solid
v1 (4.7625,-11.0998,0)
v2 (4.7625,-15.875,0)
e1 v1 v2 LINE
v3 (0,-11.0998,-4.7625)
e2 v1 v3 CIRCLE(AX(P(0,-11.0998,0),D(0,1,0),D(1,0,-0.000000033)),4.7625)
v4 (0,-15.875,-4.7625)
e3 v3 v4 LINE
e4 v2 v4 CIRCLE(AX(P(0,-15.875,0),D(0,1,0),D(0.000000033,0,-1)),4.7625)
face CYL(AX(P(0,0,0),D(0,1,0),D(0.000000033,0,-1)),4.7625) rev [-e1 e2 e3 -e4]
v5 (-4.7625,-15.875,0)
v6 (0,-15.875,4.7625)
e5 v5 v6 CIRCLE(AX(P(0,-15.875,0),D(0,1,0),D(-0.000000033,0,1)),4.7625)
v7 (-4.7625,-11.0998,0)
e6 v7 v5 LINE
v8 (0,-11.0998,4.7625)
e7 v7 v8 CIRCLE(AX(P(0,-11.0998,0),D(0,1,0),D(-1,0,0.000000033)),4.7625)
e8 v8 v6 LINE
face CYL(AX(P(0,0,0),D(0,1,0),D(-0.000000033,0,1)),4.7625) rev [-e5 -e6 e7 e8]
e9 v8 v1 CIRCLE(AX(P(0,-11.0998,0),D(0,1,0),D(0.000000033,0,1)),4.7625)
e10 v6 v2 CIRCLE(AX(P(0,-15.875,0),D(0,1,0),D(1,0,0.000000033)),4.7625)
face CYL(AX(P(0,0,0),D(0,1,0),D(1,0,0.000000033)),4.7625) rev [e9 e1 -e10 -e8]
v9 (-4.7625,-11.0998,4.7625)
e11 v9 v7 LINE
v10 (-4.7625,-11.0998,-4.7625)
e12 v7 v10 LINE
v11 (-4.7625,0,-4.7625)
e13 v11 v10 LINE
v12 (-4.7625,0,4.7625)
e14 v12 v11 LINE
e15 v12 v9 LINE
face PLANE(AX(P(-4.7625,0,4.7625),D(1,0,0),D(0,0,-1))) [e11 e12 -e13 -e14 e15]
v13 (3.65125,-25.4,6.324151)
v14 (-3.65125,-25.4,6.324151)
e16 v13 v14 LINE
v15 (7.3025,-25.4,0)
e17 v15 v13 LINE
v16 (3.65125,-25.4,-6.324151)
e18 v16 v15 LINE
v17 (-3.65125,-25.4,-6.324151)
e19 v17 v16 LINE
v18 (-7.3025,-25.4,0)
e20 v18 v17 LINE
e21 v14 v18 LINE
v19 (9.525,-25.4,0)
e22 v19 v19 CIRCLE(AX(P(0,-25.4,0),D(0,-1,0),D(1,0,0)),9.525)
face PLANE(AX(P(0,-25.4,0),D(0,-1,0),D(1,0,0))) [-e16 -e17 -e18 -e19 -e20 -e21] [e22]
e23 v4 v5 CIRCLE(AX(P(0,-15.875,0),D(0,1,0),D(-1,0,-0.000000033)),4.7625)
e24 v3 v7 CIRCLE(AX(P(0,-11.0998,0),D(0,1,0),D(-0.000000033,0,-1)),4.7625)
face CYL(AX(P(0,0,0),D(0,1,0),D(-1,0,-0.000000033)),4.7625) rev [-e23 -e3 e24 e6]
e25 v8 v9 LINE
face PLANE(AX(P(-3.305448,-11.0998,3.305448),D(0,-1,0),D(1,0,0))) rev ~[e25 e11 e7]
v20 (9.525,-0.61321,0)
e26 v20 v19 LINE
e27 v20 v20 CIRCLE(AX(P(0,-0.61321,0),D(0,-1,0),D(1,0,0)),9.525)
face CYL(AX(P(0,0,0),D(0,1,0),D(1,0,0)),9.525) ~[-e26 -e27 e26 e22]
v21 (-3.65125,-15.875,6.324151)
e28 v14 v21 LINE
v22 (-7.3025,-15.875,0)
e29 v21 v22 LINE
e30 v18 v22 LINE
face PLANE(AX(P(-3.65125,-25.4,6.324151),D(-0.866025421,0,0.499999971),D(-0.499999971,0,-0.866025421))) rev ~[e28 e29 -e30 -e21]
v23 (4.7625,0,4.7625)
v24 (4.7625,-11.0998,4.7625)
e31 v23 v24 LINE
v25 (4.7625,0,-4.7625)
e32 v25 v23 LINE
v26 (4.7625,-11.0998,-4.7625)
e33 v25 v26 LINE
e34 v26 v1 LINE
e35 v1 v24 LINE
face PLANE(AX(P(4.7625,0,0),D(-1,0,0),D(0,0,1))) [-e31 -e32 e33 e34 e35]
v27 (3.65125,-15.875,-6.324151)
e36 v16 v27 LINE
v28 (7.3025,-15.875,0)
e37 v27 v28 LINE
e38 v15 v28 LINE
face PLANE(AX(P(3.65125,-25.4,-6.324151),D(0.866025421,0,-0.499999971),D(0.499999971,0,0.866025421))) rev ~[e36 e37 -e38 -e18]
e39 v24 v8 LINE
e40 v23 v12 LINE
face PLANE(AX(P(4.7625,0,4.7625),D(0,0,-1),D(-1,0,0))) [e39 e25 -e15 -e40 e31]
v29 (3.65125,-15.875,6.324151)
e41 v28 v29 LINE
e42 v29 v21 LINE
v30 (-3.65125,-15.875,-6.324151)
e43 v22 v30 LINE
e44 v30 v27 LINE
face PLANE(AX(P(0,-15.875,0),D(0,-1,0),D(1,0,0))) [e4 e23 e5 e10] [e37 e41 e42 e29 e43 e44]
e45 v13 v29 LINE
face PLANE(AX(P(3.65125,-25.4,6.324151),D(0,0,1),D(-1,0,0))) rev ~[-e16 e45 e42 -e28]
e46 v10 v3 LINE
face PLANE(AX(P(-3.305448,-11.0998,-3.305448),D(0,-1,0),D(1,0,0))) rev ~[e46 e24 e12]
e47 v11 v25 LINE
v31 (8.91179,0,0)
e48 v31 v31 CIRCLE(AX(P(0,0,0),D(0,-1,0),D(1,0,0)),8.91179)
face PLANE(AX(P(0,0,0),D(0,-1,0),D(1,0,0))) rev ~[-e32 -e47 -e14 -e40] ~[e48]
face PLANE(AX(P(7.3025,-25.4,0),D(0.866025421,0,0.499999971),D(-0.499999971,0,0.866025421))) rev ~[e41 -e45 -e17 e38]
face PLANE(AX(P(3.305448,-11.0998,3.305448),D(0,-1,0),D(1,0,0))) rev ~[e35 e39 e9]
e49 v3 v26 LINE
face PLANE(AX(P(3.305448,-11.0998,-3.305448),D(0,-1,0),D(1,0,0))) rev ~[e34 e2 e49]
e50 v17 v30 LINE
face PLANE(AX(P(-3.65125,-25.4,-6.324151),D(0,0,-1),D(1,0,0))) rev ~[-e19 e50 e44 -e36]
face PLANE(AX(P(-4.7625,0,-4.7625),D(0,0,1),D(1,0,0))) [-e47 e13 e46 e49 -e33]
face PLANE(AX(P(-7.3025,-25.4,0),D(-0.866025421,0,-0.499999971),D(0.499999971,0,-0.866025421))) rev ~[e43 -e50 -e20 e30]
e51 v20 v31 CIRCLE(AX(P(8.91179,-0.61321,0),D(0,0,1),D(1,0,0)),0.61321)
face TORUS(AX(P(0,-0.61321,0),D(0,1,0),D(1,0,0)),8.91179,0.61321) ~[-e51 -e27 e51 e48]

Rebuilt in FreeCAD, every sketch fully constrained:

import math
import FreeCAD as App
import Part
import Sketcher
Q = App.Units.Quantity


def edges_at(feature, points):
    """Names of the edges that pass closest to the given points."""
    edges = feature.Shape.Edges
    near = lambda p: min(range(len(edges)), key=lambda i: edges[i].distToShape(Part.Vertex(*p))[0])
    return sorted({f"Edge{near(p) + 1}" for p in points})


def add_polygon(sketch, points):
    """Adds a closed chain of lines whose ends are joined by coincident constraints."""
    first, n = sketch.GeometryCount, len(points)
    for a, b in zip(points, points[1:] + points[:1]):
        sketch.addGeometry(Part.LineSegment(App.Vector(*a, 0), App.Vector(*b, 0)), False)
    for i in range(n):
        sketch.addConstraint(Sketcher.Constraint("Coincident", first + i, 2, first + (i + 1) % n, 1))

doc = App.newDocument("Part")
params = doc.addObject("Spreadsheet::Sheet", "Params")
for row, (alias, value) in enumerate([
    ("sketch1_diameter", "0.75 in"),
    ("pad1_length", "1 in"),
    ("sketch2_radius", "0.1875 in"),
    ("sketch3_radius", "0.1875 in"),
    ("pocket2_length", "0.437 in"),
    ("pocket3_length", "0.375 in"),
    ("fillet_radius", "0.61321 mm"),
], start=1):
    params.set(f"A{row}", alias)
    params.set(f"B{row}", "=" + value)
    params.setAlias(f"B{row}", alias)

body = doc.addObject("PartDesign::Body", "Body")

sketch1 = body.newObject("Sketcher::SketchObject", "Sketch")
sketch1.AttachmentSupport = (doc.getObject("XZ_Plane"), [""])
sketch1.MapMode = "FlatFace"
sketch1.addGeometry(Part.Circle(App.Vector(0, 0, 0), App.Vector(0, 0, 1), 10), False)
sketch1.addConstraint([
    Sketcher.Constraint("Coincident", 0, 3, -1, 1),
    Sketcher.Constraint("Diameter", 0, Q("0.75 in")),
])
sketch1.setExpression("Constraints[1]", "Params.sketch1_diameter")
pad1 = body.newObject("PartDesign::Pad", "Pad")
pad1.Profile = sketch1
pad1.setExpression("Length", "Params.pad1_length")

sketch2 = body.newObject("Sketcher::SketchObject", "Sketch001")
sketch2.AttachmentSupport = (doc.getObject("XZ_Plane"), [""])
sketch2.MapMode = "FlatFace"
sketch2.addGeometry([
    Part.ArcOfCircle(Part.Circle(App.Vector(0, 0, 0), App.Vector(0, 0, 1), 4.8), math.radians(0), math.radians(90)),
    Part.ArcOfCircle(Part.Circle(App.Vector(0, 0, 0), App.Vector(0, 0, 1), 4.8), math.radians(90), math.radians(180)),
    Part.ArcOfCircle(Part.Circle(App.Vector(0, 0, 0), App.Vector(0, 0, 1), 4.8), math.radians(-180), math.radians(-90)),
    Part.ArcOfCircle(Part.Circle(App.Vector(0, 0, 0), App.Vector(0, 0, 1), 4.8), math.radians(-90), math.radians(0)),
], False)
sketch2.addConstraint([
    Sketcher.Constraint("Tangent", 0, 2, 1, 1),
    Sketcher.Constraint("Tangent", 1, 2, 2, 1),
    Sketcher.Constraint("Tangent", 2, 2, 3, 1),
    Sketcher.Constraint("Tangent", 3, 2, 0, 1),
    Sketcher.Constraint("Coincident", 0, 3, -1, 1),
    Sketcher.Constraint("Equal", 0, 1),
    Sketcher.Constraint("PointOnObject", 0, 2, -2),
    Sketcher.Constraint("PointOnObject", 1, 2, -1),
    Sketcher.Constraint("PointOnObject", 2, 2, -2),
    Sketcher.Constraint("PointOnObject", 3, 2, -1),
    Sketcher.Constraint("Radius", 0, Q("0.1875 in")),
])
sketch2.setExpression("Constraints[10]", "Params.sketch2_radius")
pocket1 = body.newObject("PartDesign::Pocket", "Pocket")
pocket1.Profile = sketch2
pocket1.Type = "ThroughAll"
pocket1.Reversed = True

sketch3 = body.newObject("Sketcher::SketchObject", "Sketch002")
sketch3.AttachmentSupport = (doc.getObject("XZ_Plane"), [""])
sketch3.MapMode = "FlatFace"
sketch3.addGeometry([
    Part.ArcOfCircle(Part.Circle(App.Vector(0, 0, 0), App.Vector(0, 0, 1), 4.8), math.radians(-180), math.radians(-90)),
    Part.LineSegment(App.Vector(-4.8, 0, 0), App.Vector(-4.8, -4.8, 0)),
    Part.LineSegment(App.Vector(-4.8, -4.8, 0), App.Vector(0, -4.8, 0)),
    Part.ArcOfCircle(Part.Circle(App.Vector(0, 0, 0), App.Vector(0, 0, 1), 4.8), math.radians(90), math.radians(180)),
    Part.LineSegment(App.Vector(0, 4.8, 0), App.Vector(-4.8, 4.8, 0)),
    Part.LineSegment(App.Vector(-4.8, 4.8, 0), App.Vector(-4.8, 0, 0)),
    Part.LineSegment(App.Vector(4.8, 0, 0), App.Vector(4.8, 4.8, 0)),
    Part.LineSegment(App.Vector(4.8, 4.8, 0), App.Vector(0, 4.8, 0)),
    Part.ArcOfCircle(Part.Circle(App.Vector(0, 0, 0), App.Vector(0, 0, 1), 4.8), math.radians(0), math.radians(90)),
    Part.LineSegment(App.Vector(4.8, -4.8, 0), App.Vector(4.8, 0, 0)),
    Part.ArcOfCircle(Part.Circle(App.Vector(0, 0, 0), App.Vector(0, 0, 1), 4.8), math.radians(-90), math.radians(0)),
    Part.LineSegment(App.Vector(0, -4.8, 0), App.Vector(4.8, -4.8, 0)),
], False)
sketch3.addConstraint([
    Sketcher.Constraint("Tangent", 0, 1, 1, 1),
    Sketcher.Constraint("Coincident", 1, 2, 2, 1),
    Sketcher.Constraint("Tangent", 2, 2, 0, 2),
    Sketcher.Constraint("Tangent", 3, 1, 4, 1),
    Sketcher.Constraint("Coincident", 4, 2, 5, 1),
    Sketcher.Constraint("Tangent", 5, 2, 3, 2),
    Sketcher.Constraint("Coincident", 6, 2, 7, 1),
    Sketcher.Constraint("Tangent", 7, 2, 8, 2),
    Sketcher.Constraint("Tangent", 8, 1, 6, 1),
    Sketcher.Constraint("Tangent", 9, 2, 10, 2),
    Sketcher.Constraint("Tangent", 10, 1, 11, 1),
    Sketcher.Constraint("Coincident", 11, 2, 9, 1),
    Sketcher.Constraint("Vertical", 1),
    Sketcher.Constraint("Horizontal", 2),
    Sketcher.Constraint("Horizontal", 4),
    Sketcher.Constraint("Vertical", 5),
    Sketcher.Constraint("Vertical", 6),
    Sketcher.Constraint("Horizontal", 7),
    Sketcher.Constraint("Vertical", 9),
    Sketcher.Constraint("Horizontal", 11),
    Sketcher.Constraint("Coincident", 0, 3, -1, 1),
    Sketcher.Constraint("Coincident", 3, 3, -1, 1),
    Sketcher.Constraint("Coincident", 8, 3, -1, 1),
    Sketcher.Constraint("Coincident", 10, 3, -1, 1),
    Sketcher.Constraint("Equal", 0, 3),
    Sketcher.Constraint("Equal", 3, 8),
    Sketcher.Constraint("Equal", 8, 10),
    Sketcher.Constraint("Radius", 0, Q("0.1875 in")),
])
sketch3.setExpression("Constraints[27]", "Params.sketch3_radius")
pocket2 = body.newObject("PartDesign::Pocket", "Pocket001")
pocket2.Profile = sketch3
pocket2.setExpression("Length", "Params.pocket2_length")
pocket2.Reversed = True

sketch4 = body.newObject("Sketcher::SketchObject", "Sketch003")
sketch4.AttachmentSupport = (doc.getObject("XZ_Plane"), [""])
sketch4.MapMode = "FlatFace"
sketch4.AttachmentOffset = App.Placement(App.Vector(0, 0, 1 * 25.4), App.Rotation())
add_polygon(sketch4, [(4, -6), (7, 0), (4, 6), (-4, 6), (-7, 0), (-4, -6)])
sketch4.addConstraint([
    Sketcher.Constraint("Horizontal", 2),
    Sketcher.Constraint("Horizontal", 5),
    Sketcher.Constraint("Symmetric", 0, 2, 3, 2, -1, 1),
    Sketcher.Constraint("Symmetric", 1, 2, 4, 2, -1, 1),
    Sketcher.Constraint("PointOnObject", 0, 2, -1),
    Sketcher.Constraint("Parallel", 0, 3),
    Sketcher.Constraint("Vertical", 2, 2, 4, 2),
    Sketcher.Constraint("Angle", 0, Q("60.000002 deg")),
    Sketcher.Constraint("DistanceX", 2, 2, 2, 1, Q("0.2875 in")),
    Sketcher.Constraint("DistanceX", 3, 2, 0, 2, Q("0.575 in")),
])
pocket3 = body.newObject("PartDesign::Pocket", "Pocket002")
pocket3.Profile = sketch4
pocket3.setExpression("Length", "Params.pocket3_length")
doc.recompute()

fillet = body.newObject("PartDesign::Fillet", "Fillet")
fillet.Base = (pocket3, edges_at(pocket3, [(-9.525, 0, 0)]))
fillet.setExpression("Radius", "Params.fillet_radius")

doc.recompute()
